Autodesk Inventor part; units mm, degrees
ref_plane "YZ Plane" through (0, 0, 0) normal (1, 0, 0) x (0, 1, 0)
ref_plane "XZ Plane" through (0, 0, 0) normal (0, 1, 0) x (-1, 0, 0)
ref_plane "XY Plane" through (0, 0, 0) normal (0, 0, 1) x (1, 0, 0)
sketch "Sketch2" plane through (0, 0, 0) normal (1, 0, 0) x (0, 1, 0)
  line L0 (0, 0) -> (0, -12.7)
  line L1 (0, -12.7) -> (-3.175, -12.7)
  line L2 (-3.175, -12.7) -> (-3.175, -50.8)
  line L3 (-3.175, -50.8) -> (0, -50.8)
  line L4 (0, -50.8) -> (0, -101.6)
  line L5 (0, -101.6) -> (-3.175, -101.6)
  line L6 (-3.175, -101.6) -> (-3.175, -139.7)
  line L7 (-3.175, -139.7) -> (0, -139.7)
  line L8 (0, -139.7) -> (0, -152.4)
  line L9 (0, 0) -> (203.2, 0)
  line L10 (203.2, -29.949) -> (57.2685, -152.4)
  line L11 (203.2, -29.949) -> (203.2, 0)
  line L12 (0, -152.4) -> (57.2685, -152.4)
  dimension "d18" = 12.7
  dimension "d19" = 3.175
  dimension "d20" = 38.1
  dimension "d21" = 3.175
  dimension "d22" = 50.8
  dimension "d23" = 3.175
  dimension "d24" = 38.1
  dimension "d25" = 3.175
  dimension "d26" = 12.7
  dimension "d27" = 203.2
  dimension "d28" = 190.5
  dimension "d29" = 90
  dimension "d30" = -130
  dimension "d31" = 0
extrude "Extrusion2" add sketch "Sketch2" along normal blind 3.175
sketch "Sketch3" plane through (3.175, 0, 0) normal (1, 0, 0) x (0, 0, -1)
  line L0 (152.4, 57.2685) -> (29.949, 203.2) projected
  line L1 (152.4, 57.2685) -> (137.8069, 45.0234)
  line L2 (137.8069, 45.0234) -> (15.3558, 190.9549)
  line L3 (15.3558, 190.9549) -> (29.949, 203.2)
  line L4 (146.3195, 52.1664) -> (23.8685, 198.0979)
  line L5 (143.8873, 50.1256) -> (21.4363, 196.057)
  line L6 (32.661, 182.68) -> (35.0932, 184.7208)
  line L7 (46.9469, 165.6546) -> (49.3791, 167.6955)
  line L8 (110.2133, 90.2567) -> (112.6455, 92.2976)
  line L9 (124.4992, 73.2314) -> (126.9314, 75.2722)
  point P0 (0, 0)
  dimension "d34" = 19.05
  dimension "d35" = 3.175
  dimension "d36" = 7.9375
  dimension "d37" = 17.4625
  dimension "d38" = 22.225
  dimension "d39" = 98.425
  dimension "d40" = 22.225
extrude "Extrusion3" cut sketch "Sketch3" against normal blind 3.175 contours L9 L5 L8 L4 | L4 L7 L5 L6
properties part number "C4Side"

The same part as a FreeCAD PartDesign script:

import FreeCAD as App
import Part
import Sketcher
from FreeCAD import Vector
Q = App.Units.Quantity


def add_polygon(sketch, points):
    """Adds a closed chain of lines whose ends are joined by coincident constraints."""
    first, n = sketch.GeometryCount, len(points)
    for a, b in zip(points, points[1:] + points[:1]):
        sketch.addGeometry(Part.LineSegment(App.Vector(*a, 0), App.Vector(*b, 0)), False)
    for i in range(n):
        sketch.addConstraint(Sketcher.Constraint("Coincident", first + i, 2, first + (i + 1) % n, 1))

doc = App.newDocument("Part")
params = doc.addObject("Spreadsheet::Sheet", "Params")
for row, (alias, value) in enumerate([
    ("sketch1_width", "8 in"),
    ("sketch1_height", "2 in"),
    ("sketch1_height2", "0.5 in"),
    ("sketch1_height3", "1.5 in"),
    ("sketch1_length", "7.5 in"),
    ("pad1_length", "0.125 in"),
    ("sketch2_length", "0.125 in"),
    ("sketch2_length2", "0.875 in"),
    ("pocket1_length", "0.125 in"),
], start=1):
    params.set(f"A{row}", alias)
    params.set(f"B{row}", "=" + value)
    params.setAlias(f"B{row}", alias)

body = doc.addObject("PartDesign::Body", "Body")

sketch1 = body.newObject("Sketcher::SketchObject", "Sketch")
sketch1.AttachmentSupport = (doc.getObject("YZ_Plane"), [""])
sketch1.MapMode = "FlatFace"
add_polygon(sketch1, [(203.2, 0), (0, 0), (0, -12.7), (-3.2, -12.7), (-3.2, -50.8), (0, -50.8), (0, -101.6), (-3.2, -101.6), (-3.2, -139.7), (0, -139.7), (0, -152.4), (57.3, -152.4), (203.2, -29.9)])
sketch1.addConstraint(Sketcher.Constraint("Horizontal", 0))
sketch1.addConstraint(Sketcher.Constraint("Vertical", 1))
sketch1.addConstraint(Sketcher.Constraint("Horizontal", 2))
sketch1.addConstraint(Sketcher.Constraint("Vertical", 3))
sketch1.addConstraint(Sketcher.Constraint("Horizontal", 4))
sketch1.addConstraint(Sketcher.Constraint("Vertical", 5))
sketch1.addConstraint(Sketcher.Constraint("Horizontal", 6))
sketch1.addConstraint(Sketcher.Constraint("Vertical", 7))
sketch1.addConstraint(Sketcher.Constraint("Horizontal", 8))
sketch1.addConstraint(Sketcher.Constraint("Vertical", 9))
sketch1.addConstraint(Sketcher.Constraint("Horizontal", 10))
sketch1.addConstraint(Sketcher.Constraint("Vertical", 12))
sketch1.addConstraint(Sketcher.Constraint("Coincident", 0, 2, -1, 1))
sketch1.addConstraint(Sketcher.Constraint("PointOnObject", 4, 2, -2))
sketch1.addConstraint(Sketcher.Constraint("PointOnObject", 8, 2, -2))
sketch1.addConstraint(Sketcher.Constraint("Vertical", 3, 2, 6, 2))
sketch1.addConstraint(Sketcher.Constraint("Equal", 3, 7))
sketch1.addConstraint(Sketcher.Constraint("Equal", 1, 9))
sketch1.addConstraint(Sketcher.Constraint("DistanceX", 0, 2, 0, 1, Q("8 in")))
sketch1.addConstraint(Sketcher.Constraint("DistanceY", 5, 2, 5, 1, Q("2 in")))
sketch1.addConstraint(Sketcher.Constraint("DistanceY", 1, 2, 1, 1, Q("0.5 in")))
sketch1.addConstraint(Sketcher.Constraint("DistanceY", 3, 2, 3, 1, Q("1.5 in")))
sketch1.addConstraint(Sketcher.Constraint("Distance", 11, Q("7.5 in")))
sketch1.addConstraint(Sketcher.Constraint("DistanceX", 2, 2, 2, 1, Q("0.125 in")))
sketch1.addConstraint(Sketcher.Constraint("Angle", 11, Q("40 deg")))
sketch1.setExpression("Constraints[31]", "Params.sketch1_width")
sketch1.setExpression("Constraints[32]", "Params.sketch1_height")
sketch1.setExpression("Constraints[33]", "Params.sketch1_height2")
sketch1.setExpression("Constraints[34]", "Params.sketch1_height3")
sketch1.setExpression("Constraints[35]", "Params.sketch1_length")
pad1 = body.newObject("PartDesign::Pad", "Pad")
pad1.Profile = sketch1
pad1.setExpression("Length", "Params.pad1_length")

sketch2 = body.newObject("Sketcher::SketchObject", "Sketch001")
sketch2.AttachmentSupport = (doc.getObject("YZ_Plane"), [""])
sketch2.MapMode = "FlatFace"
sketch2.AttachmentOffset = App.Placement(Vector(0, 0, 0.125 * 25.4), App.Rotation())
add_polygon(sketch2, [(73.2, -124.5), (75.3, -126.9), (92.3, -112.6), (90.3, -110.2)])
add_polygon(sketch2, [(167.7, -49.4), (184.7, -35.1), (182.7, -32.7), (165.7, -46.9)])
sketch2.addConstraint(Sketcher.Constraint("Perpendicular", 0, 1))
sketch2.addConstraint(Sketcher.Constraint("Perpendicular", 1, 2))
sketch2.addConstraint(Sketcher.Constraint("Perpendicular", 2, 3))
sketch2.addConstraint(Sketcher.Constraint("Parallel", 3, 4))
sketch2.addConstraint(Sketcher.Constraint("Perpendicular", 4, 5))
sketch2.addConstraint(Sketcher.Constraint("Perpendicular", 5, 6))
sketch2.addConstraint(Sketcher.Constraint("Perpendicular", 6, 7))
sketch2.addConstraint(Sketcher.Constraint("Equal", 3, 4))
sketch2.addConstraint(Sketcher.Constraint("Equal", 2, 5))
sketch2.addConstraint(Sketcher.Constraint("Distance", 0, Q("0.125 in")))
sketch2.addConstraint(Sketcher.Constraint("Distance", 1, Q("0.875 in")))
sketch2.addConstraint(Sketcher.Constraint("Angle", 0, Q("-50.0008 deg")))
sketch2.addConstraint(Sketcher.Constraint("DistanceX", 0, 2, 4, 2, Q("4.309 in")))
sketch2.addConstraint(Sketcher.Constraint("DistanceY", 1, 2, 5, 2, Q("3.149 in")))
sketch2.addConstraint(Sketcher.Constraint("DistanceY", 0, 2, -1, 1, Q("4.9973 in")))
sketch2.addConstraint(Sketcher.Constraint("DistanceX", -1, 1, 0, 2, 75.2722))
sketch2.setExpression("Constraints[17]", "Params.sketch2_length")
sketch2.setExpression("Constraints[18]", "Params.sketch2_length2")
pocket1 = body.newObject("PartDesign::Pocket", "Pocket")
pocket1.Profile = sketch2
pocket1.setExpression("Length", "Params.pocket1_length")

doc.recompute()
